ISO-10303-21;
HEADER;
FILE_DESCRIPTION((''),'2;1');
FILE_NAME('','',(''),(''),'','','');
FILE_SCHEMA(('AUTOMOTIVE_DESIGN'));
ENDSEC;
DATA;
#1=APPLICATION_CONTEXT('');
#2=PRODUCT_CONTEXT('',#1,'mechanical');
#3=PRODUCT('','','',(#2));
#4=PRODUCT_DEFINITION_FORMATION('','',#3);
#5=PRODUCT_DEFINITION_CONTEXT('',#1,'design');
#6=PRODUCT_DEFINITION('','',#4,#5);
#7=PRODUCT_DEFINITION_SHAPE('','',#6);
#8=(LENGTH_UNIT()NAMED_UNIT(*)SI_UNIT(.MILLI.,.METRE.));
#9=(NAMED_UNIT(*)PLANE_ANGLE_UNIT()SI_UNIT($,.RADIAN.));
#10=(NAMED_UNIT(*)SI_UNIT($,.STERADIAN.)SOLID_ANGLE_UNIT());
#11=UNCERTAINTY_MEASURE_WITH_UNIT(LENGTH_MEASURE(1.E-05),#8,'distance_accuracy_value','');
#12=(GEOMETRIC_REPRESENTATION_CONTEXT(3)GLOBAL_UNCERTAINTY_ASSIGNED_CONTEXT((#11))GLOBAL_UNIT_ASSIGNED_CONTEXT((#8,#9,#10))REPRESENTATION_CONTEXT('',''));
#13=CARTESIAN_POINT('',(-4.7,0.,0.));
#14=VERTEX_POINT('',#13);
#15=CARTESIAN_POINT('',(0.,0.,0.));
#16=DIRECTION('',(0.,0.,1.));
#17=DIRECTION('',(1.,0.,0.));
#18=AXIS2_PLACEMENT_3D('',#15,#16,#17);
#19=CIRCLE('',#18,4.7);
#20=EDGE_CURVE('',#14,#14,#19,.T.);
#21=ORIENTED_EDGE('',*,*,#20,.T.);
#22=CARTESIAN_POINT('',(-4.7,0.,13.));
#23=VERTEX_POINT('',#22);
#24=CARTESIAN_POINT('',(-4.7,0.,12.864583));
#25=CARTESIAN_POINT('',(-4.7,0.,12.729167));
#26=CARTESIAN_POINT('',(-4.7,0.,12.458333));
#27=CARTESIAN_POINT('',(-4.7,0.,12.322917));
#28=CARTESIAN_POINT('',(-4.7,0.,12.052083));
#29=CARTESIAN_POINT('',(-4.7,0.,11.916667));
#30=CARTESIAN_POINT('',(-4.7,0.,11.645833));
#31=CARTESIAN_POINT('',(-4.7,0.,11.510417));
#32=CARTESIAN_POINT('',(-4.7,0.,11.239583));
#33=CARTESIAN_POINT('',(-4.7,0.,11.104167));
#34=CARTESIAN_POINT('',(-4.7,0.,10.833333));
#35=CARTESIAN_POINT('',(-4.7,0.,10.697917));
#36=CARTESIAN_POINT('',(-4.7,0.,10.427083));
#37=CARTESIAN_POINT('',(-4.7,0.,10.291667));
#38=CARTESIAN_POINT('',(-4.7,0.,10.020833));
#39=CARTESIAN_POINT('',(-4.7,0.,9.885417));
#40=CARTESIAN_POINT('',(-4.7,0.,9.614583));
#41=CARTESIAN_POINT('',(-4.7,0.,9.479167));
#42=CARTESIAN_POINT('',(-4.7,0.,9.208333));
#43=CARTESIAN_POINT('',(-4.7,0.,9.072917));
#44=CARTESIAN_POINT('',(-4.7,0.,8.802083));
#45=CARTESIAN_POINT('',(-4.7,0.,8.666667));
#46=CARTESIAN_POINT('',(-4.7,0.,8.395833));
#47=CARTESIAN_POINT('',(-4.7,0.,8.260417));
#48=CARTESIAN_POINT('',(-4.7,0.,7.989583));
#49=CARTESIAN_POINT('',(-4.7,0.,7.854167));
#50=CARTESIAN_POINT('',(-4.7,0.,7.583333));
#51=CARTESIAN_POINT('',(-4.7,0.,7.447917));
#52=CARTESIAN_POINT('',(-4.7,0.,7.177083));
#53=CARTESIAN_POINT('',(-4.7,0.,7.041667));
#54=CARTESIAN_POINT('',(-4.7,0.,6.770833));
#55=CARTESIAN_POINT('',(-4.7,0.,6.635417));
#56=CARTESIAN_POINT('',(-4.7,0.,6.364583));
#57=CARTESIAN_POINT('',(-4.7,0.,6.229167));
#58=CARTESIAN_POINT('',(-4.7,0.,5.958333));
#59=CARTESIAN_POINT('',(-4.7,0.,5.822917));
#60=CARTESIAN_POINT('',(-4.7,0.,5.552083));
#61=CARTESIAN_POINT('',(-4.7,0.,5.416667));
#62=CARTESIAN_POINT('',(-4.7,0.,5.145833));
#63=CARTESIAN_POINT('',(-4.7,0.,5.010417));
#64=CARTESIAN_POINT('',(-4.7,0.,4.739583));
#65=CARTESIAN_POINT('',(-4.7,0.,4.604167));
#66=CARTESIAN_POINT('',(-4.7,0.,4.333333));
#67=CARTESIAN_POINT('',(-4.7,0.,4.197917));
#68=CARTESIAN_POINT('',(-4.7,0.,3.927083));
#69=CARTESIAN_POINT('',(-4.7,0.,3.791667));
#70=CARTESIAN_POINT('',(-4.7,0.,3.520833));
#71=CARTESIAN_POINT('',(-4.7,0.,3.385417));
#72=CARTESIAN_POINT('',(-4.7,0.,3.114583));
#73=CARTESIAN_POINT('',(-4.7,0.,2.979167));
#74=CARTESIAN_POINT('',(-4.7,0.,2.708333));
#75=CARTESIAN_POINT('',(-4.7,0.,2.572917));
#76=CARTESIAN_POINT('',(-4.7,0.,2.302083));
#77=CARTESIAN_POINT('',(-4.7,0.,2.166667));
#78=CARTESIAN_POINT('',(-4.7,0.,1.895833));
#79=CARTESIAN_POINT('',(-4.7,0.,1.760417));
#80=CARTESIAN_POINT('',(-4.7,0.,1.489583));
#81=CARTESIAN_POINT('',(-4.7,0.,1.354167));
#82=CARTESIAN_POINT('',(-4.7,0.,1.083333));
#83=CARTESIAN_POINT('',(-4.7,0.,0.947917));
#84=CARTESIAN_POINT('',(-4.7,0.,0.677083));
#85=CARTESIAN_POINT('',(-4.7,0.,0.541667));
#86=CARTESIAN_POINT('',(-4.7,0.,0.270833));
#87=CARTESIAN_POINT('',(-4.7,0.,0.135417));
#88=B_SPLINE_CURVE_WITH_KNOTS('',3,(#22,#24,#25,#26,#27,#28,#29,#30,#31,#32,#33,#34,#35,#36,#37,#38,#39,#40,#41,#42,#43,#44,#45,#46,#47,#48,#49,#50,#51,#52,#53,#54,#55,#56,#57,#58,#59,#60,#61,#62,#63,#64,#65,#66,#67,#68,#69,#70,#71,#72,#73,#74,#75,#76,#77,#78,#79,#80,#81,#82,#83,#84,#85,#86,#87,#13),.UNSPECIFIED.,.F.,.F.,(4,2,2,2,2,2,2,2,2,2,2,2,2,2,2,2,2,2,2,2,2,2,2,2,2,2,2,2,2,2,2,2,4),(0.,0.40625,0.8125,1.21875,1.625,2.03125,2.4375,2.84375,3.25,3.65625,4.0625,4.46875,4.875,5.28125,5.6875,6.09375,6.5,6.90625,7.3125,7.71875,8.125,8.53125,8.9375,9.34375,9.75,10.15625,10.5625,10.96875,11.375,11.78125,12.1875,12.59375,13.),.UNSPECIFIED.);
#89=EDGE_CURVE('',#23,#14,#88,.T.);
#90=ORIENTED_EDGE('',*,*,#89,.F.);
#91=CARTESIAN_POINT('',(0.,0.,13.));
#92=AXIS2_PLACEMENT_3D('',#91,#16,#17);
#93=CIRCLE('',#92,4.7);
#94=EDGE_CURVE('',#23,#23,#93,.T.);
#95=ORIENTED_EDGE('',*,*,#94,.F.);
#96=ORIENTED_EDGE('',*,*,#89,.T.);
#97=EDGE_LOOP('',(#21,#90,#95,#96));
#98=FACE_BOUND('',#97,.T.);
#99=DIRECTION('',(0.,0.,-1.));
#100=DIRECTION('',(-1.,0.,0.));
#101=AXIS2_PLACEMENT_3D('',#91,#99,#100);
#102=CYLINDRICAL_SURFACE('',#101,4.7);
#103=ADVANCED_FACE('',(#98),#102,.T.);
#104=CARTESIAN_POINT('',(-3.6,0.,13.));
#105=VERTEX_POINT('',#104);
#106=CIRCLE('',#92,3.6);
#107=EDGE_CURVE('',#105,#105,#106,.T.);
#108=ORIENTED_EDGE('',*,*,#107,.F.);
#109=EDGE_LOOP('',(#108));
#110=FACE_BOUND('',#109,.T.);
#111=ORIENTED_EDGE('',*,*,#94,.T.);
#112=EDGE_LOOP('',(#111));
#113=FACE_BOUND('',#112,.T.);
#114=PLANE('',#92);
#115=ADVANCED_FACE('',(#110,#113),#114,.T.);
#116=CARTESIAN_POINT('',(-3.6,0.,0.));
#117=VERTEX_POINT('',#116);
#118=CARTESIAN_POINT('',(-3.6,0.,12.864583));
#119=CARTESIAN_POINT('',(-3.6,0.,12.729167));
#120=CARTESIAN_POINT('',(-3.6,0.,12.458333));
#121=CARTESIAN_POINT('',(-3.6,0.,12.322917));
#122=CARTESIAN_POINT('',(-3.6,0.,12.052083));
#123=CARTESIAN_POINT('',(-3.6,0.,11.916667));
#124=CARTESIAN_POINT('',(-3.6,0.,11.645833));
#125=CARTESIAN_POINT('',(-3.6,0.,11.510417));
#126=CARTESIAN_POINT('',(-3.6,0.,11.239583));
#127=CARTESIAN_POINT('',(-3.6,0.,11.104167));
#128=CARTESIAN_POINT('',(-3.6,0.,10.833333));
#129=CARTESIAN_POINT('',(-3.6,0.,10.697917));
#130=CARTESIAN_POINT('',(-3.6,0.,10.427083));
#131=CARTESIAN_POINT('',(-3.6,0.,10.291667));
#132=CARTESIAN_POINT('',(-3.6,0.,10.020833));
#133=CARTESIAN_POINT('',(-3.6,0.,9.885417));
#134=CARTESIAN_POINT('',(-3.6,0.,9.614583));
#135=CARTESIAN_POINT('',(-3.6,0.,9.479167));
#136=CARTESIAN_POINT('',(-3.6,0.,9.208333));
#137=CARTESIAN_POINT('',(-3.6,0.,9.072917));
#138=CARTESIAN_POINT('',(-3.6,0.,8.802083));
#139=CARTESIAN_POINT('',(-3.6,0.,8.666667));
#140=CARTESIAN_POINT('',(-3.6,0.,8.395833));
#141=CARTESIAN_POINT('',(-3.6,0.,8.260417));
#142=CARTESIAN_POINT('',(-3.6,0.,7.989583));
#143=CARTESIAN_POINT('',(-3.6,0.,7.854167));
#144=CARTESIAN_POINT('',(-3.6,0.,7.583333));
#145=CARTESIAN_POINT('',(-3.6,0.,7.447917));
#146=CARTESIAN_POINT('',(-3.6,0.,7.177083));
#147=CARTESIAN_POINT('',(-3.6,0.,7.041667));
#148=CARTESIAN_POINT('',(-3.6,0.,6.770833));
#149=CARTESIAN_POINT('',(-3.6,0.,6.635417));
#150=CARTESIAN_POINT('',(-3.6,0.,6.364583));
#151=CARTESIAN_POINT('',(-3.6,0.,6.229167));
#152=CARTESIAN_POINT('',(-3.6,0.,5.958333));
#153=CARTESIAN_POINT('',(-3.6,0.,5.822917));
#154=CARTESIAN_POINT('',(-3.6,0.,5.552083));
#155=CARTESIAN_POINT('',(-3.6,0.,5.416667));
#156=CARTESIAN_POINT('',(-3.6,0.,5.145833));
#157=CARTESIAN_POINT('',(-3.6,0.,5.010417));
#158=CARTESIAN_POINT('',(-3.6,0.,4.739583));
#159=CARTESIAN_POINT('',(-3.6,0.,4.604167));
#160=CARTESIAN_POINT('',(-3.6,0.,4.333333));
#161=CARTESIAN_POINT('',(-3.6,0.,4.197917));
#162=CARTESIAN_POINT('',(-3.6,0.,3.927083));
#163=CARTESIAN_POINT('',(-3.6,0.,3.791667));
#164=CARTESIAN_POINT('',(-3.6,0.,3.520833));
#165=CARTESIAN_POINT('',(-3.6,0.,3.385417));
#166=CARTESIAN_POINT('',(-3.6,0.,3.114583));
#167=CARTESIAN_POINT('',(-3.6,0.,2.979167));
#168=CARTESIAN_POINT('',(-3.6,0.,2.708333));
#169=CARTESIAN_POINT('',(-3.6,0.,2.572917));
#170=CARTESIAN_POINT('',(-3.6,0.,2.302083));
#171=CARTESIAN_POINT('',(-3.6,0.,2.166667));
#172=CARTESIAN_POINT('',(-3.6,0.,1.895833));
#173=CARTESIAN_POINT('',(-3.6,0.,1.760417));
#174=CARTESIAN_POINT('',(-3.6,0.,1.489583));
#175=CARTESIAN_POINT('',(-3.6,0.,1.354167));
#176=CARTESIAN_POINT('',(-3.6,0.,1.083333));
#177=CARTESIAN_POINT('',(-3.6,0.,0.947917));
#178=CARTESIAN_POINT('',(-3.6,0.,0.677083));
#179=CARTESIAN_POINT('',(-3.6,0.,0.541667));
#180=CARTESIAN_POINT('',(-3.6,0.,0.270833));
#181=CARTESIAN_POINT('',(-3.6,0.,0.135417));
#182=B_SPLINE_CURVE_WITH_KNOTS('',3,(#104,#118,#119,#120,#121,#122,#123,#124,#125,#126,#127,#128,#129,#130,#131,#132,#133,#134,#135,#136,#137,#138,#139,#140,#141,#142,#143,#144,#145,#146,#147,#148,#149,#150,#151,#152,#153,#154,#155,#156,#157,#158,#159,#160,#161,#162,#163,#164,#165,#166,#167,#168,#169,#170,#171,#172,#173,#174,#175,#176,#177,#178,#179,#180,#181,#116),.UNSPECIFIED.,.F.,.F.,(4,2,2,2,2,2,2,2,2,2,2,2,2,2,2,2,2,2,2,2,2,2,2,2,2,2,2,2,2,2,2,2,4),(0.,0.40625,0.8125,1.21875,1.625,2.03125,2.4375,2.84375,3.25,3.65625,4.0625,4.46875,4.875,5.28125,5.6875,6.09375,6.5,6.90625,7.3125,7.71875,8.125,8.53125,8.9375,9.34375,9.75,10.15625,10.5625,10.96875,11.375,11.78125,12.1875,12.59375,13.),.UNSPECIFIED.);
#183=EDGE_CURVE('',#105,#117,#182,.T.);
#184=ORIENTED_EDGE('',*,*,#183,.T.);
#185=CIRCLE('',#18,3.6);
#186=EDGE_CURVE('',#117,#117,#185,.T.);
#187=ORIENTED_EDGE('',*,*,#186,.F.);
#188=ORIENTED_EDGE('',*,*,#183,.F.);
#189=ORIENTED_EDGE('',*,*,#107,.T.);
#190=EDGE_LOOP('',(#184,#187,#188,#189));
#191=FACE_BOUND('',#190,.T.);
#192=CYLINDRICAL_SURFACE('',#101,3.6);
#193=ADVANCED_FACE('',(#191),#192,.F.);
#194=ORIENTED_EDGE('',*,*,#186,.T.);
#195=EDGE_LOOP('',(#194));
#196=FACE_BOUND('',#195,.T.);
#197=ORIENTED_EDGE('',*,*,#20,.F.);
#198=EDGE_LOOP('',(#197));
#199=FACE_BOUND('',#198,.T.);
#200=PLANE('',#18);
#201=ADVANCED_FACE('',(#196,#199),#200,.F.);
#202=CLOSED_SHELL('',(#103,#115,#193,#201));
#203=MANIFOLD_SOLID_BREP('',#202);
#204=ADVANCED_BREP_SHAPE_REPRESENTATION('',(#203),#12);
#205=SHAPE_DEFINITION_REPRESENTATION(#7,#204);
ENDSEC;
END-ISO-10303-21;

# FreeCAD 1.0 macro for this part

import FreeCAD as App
import Part
import Sketcher

V = App.Vector
Q = App.Units.Quantity

doc = App.newDocument("Part")
body = doc.addObject("PartDesign::Body", "Body")

# Sketch on XY plane
sketch1 = body.newObject("Sketcher::SketchObject", "Sketch")
sketch1.AttachmentSupport = (doc.getObject("XY_Plane"), [""])
sketch1.MapMode = "FlatFace"
sketch1.addGeometry(Part.Circle(V(0, 0, 0), V(0, 0, 1), 4.7), False)
sketch1.addGeometry(Part.Circle(V(0, 0, 0), V(0, 0, 1), 3.6), False)
sketch1.addConstraint(Sketcher.Constraint("Coincident", 0, 3, -1, 1))
sketch1.addConstraint(Sketcher.Constraint("Coincident", 1, 3, -1, 1))
sketch1.addConstraint(Sketcher.Constraint("Diameter", 0, Q("9.4 mm")))
sketch1.addConstraint(Sketcher.Constraint("Diameter", 1, Q("7.2 mm")))
pad1 = body.newObject("PartDesign::Pad", "Pad")
pad1.Profile = sketch1
pad1.Length = 13

doc.recompute()
